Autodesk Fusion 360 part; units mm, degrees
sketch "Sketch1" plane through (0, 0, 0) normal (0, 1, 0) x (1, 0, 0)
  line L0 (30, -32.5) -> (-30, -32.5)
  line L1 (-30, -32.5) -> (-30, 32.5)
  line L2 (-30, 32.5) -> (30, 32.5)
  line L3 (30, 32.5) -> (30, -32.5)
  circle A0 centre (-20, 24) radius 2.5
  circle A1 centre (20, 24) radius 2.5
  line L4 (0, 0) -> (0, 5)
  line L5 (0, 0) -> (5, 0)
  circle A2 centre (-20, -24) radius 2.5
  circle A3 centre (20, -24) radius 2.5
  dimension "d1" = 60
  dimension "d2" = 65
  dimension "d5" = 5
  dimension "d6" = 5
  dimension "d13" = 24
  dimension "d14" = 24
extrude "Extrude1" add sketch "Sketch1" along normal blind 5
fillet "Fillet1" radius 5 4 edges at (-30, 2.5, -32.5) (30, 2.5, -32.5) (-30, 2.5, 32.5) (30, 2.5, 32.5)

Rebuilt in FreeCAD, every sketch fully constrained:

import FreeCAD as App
import Part
import Sketcher
from FreeCAD import Vector


def edges_at(feature, points):
    """Names of the edges that pass closest to the given points."""
    edges = feature.Shape.Edges
    near = lambda p: min(range(len(edges)), key=lambda i: edges[i].distToShape(Part.Vertex(*p))[0])
    return sorted({f"Edge{near(p) + 1}" for p in points})

doc = App.newDocument("Part")
body = doc.addObject("PartDesign::Body", "Body")

# Sketch on XZ plane
sketch1 = body.newObject("Sketcher::SketchObject", "Sketch")
sketch1.AttachmentSupport = (doc.getObject("XZ_Plane"), [""])
sketch1.MapMode = "FlatFace"
sketch1.addGeometry([
    Part.LineSegment(Vector(-30, 32.5, 0), Vector(30, 32.5, 0)),  # 0
    Part.LineSegment(Vector(30, 32.5, 0), Vector(30, -32.5, 0)),  # 1
    Part.LineSegment(Vector(30, -32.5, 0), Vector(-30, -32.5, 0)),  # 2
    Part.LineSegment(Vector(-30, -32.5, 0), Vector(-30, 32.5, 0)),  # 3
    Part.Circle(Vector(-20, 24, 0), Vector(0, 0, 1), 2.5),  # 4
    Part.Circle(Vector(20, 24, 0), Vector(0, 0, 1), 2.5),  # 5
    Part.Circle(Vector(-20, -24, 0), Vector(0, 0, 1), 2.5),  # 6
    Part.Circle(Vector(20, -24, 0), Vector(0, 0, 1), 2.5),  # 7
], False)
sketch1.addConstraint([
    Sketcher.Constraint("Coincident", 0, 2, 1, 1),
    Sketcher.Constraint("Coincident", 1, 2, 2, 1),
    Sketcher.Constraint("Coincident", 2, 2, 3, 1),
    Sketcher.Constraint("Coincident", 3, 2, 0, 1),
    Sketcher.Constraint("Horizontal", 0),
    Sketcher.Constraint("Vertical", 1),
    Sketcher.Constraint("Horizontal", 2),
    Sketcher.Constraint("Vertical", 3),
    Sketcher.Constraint("Equal", 4, 5),
    Sketcher.Constraint("Equal", 5, 6),
    Sketcher.Constraint("Equal", 6, 7),
    Sketcher.Constraint("Symmetric", 5, 3, 6, 3, -1, 1),
    Sketcher.Constraint("Symmetric", 4, 3, 7, 3, -1, 1),
    Sketcher.Constraint("Symmetric", 0, 2, 2, 2, -1, 1),
    Sketcher.Constraint("Symmetric", 4, 3, 5, 3, -2),
    Sketcher.Constraint("Diameter", 4, 5.0),
    Sketcher.Constraint("DistanceX", 0, 1, 0, 2, 60.0),
    Sketcher.Constraint("DistanceY", 1, 2, 1, 1, 65.0),
    Sketcher.Constraint("DistanceY", -1, 1, 4, 3, 24.0),
    Sketcher.Constraint("DistanceX", 4, 3, -1, 1, 20.0),
])
pad1 = body.newObject("PartDesign::Pad", "Pad")
pad1.Profile = sketch1
pad1.Length = 5
pad1.Reversed = True
doc.recompute()

fillet = body.newObject("PartDesign::Fillet", "Fillet")
fillet.Base = (pad1, edges_at(pad1, [
    (-30, 2.5, -32.5),
    (30, 2.5, -32.5),
    (-30, 2.5, 32.5),
    (30, 2.5, 32.5),
]))
fillet.Radius = 5

doc.recompute()
